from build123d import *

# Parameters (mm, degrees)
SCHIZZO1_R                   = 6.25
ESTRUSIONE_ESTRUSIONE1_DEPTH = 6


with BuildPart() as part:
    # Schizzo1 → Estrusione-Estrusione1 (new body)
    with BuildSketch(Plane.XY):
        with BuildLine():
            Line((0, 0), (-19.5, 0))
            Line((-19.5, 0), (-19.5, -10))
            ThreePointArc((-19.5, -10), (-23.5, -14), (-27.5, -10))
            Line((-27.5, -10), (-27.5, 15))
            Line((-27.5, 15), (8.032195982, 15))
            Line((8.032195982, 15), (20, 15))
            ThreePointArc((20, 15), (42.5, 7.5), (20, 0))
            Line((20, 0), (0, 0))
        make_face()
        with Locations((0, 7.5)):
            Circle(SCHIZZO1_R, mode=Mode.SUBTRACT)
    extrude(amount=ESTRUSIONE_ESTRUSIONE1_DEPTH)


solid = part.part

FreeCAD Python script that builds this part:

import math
import FreeCAD as App
import Part
import Sketcher
Q = App.Units.Quantity

doc = App.newDocument("Part")
body = doc.addObject("PartDesign::Body", "Body")

# Sketch on XY plane
sketch1 = body.newObject("Sketcher::SketchObject", "Sketch")
sketch1.AttachmentSupport = (doc.getObject("XY_Plane"), [""])
sketch1.MapMode = "FlatFace"
sketch1.addGeometry([
    Part.LineSegment(App.Vector(-19.5, -10, 0), App.Vector(-19.5, 0, 0)),  # 0
    Part.LineSegment(App.Vector(-19.5, 0, 0), App.Vector(20, 0, 0)),  # 1
    Part.ArcOfCircle(Part.Circle(App.Vector(30, 7.5, 0), App.Vector(0, 0, 1), 12.5), math.radians(-143), math.radians(143)),  # 2
    Part.LineSegment(App.Vector(20, 15, 0), App.Vector(-27.5, 15, 0)),  # 3
    Part.LineSegment(App.Vector(-27.5, 15, 0), App.Vector(-27.5, -10, 0)),  # 4
    Part.ArcOfCircle(Part.Circle(App.Vector(-23.5, -10, 0), App.Vector(0, 0, 1), 4), math.radians(180), math.radians(360)),  # 5
    Part.Circle(App.Vector(0, 7.5, 0), App.Vector(0, 0, 1), 6.2),  # 6
], False)
sketch1.addConstraint([
    Sketcher.Constraint("Coincident", 0, 2, 1, 1),
    Sketcher.Constraint("Coincident", 1, 2, 2, 1),
    Sketcher.Constraint("Coincident", 2, 2, 3, 1),
    Sketcher.Constraint("Coincident", 3, 2, 4, 1),
    Sketcher.Constraint("Tangent", 4, 2, 5, 1),
    Sketcher.Constraint("Tangent", 5, 2, 0, 1),
    Sketcher.Constraint("Vertical", 0),
    Sketcher.Constraint("Horizontal", 1),
    Sketcher.Constraint("Horizontal", 3),
    Sketcher.Constraint("Vertical", 4),
    Sketcher.Constraint("PointOnObject", 6, 3, -2),
    Sketcher.Constraint("PointOnObject", 0, 2, -1),
    Sketcher.Constraint("Horizontal", 2, 3, 6, 3),
    Sketcher.Constraint("Vertical", 1, 2, 2, 2),
    Sketcher.Constraint("Radius", 5, Q("4 mm")),
    Sketcher.Constraint("Diameter", 6, Q("12.5 mm")),
    Sketcher.Constraint("Radius", 2, Q("12.5 mm")),
    Sketcher.Constraint("DistanceY", 0, 1, 0, 2, Q("10 mm")),
    Sketcher.Constraint("DistanceY", 4, 2, 4, 1, Q("25 mm")),
    Sketcher.Constraint("DistanceX", 1, 1, 1, 2, Q("39.5 mm")),
    Sketcher.Constraint("DistanceX", -1, 1, 2, 3, Q("30 mm")),
])
pad1 = body.newObject("PartDesign::Pad", "Pad")
pad1.Profile = sketch1
pad1.Length = 6

doc.recompute()
